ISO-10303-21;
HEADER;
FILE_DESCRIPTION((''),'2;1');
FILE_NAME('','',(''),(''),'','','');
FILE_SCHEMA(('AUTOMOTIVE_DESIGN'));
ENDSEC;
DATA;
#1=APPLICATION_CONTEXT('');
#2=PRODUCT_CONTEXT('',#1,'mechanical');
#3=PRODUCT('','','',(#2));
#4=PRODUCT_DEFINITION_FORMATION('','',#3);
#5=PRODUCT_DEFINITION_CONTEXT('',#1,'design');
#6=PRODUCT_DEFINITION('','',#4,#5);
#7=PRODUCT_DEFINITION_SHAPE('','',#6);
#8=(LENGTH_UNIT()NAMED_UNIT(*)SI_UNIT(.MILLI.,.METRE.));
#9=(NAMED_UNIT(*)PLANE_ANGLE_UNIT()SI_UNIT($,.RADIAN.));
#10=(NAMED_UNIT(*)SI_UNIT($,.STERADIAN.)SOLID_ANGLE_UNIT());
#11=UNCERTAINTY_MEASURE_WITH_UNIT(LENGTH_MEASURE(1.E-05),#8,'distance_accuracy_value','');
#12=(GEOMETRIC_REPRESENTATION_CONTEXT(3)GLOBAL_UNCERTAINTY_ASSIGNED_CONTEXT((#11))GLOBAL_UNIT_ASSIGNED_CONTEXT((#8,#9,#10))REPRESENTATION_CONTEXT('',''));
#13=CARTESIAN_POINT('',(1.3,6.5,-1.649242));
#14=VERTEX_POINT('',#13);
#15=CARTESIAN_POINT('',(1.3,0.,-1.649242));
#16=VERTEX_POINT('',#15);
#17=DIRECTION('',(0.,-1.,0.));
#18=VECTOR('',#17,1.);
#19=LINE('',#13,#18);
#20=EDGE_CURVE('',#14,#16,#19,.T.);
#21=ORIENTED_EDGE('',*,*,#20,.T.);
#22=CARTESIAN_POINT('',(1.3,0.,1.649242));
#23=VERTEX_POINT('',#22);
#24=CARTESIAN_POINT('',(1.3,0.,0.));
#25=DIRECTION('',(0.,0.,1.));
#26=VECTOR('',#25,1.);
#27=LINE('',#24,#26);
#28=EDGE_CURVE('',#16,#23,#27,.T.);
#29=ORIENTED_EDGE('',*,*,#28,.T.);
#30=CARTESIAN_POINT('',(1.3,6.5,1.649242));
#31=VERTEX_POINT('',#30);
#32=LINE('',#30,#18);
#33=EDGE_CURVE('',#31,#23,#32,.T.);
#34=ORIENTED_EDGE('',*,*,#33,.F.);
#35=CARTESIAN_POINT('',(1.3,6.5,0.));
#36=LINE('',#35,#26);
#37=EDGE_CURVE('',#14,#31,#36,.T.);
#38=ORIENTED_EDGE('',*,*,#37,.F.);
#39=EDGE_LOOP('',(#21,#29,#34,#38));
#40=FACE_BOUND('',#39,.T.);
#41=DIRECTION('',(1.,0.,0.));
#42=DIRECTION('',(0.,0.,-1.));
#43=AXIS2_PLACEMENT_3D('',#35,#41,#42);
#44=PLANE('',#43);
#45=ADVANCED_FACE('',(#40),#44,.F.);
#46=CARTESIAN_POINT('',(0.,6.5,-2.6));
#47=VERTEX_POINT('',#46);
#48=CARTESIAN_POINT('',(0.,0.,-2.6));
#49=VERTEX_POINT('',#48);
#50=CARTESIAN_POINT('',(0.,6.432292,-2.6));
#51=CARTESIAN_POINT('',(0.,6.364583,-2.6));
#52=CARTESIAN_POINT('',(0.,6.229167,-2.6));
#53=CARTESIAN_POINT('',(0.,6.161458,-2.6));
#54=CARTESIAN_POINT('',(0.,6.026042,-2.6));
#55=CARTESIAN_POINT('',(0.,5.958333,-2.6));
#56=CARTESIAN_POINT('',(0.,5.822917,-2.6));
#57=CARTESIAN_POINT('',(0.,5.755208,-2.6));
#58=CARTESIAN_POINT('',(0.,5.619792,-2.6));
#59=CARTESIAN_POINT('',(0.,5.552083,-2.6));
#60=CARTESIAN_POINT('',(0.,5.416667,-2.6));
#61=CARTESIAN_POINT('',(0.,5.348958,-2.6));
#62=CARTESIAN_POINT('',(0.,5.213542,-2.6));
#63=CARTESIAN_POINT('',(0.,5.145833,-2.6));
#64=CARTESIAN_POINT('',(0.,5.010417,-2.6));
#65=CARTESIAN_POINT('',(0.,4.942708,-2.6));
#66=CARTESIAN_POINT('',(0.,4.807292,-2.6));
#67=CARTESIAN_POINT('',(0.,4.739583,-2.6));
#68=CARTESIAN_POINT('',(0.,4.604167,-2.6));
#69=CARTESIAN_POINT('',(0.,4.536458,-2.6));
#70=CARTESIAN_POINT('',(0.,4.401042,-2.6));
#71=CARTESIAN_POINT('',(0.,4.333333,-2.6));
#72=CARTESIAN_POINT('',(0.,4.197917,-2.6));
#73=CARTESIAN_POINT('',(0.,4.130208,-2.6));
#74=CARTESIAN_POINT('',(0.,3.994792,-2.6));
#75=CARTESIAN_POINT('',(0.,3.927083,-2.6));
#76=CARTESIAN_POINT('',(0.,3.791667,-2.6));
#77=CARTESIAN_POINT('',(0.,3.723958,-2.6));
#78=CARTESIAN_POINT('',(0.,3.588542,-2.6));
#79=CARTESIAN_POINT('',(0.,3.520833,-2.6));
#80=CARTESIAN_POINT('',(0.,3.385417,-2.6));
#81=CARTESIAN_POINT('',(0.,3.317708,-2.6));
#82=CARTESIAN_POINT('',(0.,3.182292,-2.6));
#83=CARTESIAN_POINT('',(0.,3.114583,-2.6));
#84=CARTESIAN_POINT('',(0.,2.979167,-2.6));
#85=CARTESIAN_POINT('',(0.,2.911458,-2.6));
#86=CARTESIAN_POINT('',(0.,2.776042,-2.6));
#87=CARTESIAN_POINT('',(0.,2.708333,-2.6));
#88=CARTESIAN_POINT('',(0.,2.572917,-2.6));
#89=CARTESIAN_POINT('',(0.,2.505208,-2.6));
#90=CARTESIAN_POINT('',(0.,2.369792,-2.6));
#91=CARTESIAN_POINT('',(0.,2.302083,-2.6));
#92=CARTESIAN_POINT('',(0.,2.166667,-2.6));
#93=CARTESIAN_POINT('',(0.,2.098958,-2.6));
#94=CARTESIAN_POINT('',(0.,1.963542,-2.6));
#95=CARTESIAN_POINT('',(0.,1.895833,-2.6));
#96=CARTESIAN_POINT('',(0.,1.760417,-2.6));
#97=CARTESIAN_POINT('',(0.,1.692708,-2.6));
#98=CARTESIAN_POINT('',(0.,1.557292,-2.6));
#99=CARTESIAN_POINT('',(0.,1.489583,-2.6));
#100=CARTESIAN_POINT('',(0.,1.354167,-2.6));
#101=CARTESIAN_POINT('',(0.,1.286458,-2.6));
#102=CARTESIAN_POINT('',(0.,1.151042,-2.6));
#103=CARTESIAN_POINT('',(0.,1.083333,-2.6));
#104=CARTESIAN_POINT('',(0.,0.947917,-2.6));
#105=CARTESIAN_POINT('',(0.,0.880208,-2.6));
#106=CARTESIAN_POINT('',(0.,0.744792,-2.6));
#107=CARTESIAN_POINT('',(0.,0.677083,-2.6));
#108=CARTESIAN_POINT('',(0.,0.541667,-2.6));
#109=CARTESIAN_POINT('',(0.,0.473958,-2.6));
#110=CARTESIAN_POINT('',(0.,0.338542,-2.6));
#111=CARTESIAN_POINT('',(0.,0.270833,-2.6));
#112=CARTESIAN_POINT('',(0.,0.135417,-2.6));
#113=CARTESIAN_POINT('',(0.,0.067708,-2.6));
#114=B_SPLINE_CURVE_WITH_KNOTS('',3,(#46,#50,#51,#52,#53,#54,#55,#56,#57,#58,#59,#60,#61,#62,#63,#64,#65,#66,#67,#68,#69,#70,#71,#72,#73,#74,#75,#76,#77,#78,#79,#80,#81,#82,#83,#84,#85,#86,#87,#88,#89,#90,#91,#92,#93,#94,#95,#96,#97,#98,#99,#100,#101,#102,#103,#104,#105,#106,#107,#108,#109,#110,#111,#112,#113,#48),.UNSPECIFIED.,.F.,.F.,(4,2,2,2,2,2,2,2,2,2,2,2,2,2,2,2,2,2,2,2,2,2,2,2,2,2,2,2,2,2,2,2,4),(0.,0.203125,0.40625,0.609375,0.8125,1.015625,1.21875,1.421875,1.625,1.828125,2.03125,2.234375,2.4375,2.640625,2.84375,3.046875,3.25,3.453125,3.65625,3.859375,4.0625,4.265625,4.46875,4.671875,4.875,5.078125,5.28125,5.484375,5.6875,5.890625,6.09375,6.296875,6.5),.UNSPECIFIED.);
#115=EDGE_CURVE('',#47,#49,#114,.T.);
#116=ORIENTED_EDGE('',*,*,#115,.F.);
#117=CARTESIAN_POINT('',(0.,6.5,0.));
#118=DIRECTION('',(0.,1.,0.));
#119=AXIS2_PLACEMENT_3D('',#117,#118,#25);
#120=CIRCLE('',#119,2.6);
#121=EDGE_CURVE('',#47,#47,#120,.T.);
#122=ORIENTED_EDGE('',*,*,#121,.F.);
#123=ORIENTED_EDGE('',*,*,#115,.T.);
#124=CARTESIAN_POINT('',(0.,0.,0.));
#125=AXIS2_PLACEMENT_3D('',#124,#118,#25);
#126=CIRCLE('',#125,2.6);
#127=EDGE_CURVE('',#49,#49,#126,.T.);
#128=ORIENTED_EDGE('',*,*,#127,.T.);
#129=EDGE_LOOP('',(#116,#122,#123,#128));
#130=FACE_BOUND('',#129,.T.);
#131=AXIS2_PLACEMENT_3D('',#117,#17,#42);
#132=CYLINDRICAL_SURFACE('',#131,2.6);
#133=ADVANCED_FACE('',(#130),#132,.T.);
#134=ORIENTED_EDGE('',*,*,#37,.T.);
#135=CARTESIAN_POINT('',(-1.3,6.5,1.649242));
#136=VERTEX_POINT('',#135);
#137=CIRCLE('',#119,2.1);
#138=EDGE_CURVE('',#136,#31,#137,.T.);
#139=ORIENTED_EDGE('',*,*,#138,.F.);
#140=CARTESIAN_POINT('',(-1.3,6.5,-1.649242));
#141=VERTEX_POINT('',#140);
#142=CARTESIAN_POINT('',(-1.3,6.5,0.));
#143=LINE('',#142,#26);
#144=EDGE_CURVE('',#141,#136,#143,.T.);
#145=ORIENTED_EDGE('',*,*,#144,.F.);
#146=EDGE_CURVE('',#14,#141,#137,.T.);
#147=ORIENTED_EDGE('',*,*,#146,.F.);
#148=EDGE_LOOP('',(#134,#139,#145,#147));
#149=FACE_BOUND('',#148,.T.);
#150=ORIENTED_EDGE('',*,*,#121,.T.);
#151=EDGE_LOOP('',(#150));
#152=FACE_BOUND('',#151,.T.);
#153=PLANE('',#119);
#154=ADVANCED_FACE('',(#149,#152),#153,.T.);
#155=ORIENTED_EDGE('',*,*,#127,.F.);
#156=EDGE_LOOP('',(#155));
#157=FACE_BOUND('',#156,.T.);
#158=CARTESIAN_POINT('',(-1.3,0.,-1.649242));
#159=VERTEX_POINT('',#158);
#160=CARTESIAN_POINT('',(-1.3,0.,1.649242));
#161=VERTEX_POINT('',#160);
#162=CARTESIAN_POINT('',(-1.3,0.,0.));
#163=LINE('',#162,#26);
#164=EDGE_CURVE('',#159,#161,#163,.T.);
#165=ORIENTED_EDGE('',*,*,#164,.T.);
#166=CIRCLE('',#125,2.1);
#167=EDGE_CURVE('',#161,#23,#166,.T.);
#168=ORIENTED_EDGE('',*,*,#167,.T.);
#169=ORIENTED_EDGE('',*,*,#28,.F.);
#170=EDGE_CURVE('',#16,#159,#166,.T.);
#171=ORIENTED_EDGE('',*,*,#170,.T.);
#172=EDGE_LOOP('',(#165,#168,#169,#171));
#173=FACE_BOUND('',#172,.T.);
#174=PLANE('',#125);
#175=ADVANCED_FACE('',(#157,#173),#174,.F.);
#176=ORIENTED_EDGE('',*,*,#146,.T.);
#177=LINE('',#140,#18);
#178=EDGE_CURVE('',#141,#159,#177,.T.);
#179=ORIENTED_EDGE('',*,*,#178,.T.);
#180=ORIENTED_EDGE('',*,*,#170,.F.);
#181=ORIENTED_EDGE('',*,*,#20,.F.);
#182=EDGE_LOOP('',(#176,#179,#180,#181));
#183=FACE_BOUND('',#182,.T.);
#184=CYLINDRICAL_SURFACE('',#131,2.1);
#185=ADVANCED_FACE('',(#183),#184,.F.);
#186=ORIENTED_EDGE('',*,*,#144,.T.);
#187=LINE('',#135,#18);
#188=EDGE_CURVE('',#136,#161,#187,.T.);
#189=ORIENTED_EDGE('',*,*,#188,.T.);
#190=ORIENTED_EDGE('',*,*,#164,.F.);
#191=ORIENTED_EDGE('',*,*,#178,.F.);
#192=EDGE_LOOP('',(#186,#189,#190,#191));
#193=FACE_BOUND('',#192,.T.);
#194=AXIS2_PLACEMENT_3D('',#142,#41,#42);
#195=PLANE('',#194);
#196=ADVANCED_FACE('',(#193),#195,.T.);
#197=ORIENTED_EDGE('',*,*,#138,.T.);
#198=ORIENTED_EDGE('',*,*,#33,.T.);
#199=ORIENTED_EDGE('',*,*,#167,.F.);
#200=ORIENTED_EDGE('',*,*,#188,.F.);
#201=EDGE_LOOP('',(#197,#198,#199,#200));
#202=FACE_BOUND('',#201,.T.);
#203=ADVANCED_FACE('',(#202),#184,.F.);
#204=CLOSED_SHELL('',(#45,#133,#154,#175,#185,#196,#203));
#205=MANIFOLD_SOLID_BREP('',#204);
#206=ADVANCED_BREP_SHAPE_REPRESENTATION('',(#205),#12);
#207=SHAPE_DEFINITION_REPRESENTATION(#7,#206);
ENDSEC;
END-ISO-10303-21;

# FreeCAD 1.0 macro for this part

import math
import FreeCAD as App
import Part
import Sketcher

doc = App.newDocument("Part")
body = doc.addObject("PartDesign::Body", "Body")

# Sketch on XZ plane
sketch1 = body.newObject("Sketcher::SketchObject", "Sketch")
sketch1.AttachmentSupport = (doc.getObject("XZ_Plane"), [""])
sketch1.MapMode = "FlatFace"
sketch1.addGeometry([
    Part.ArcOfCircle(Part.Circle(App.Vector(0, 0, 0), App.Vector(0, 0, 1), 2.6), math.radians(0), math.radians(60)),  # 0
    Part.ArcOfCircle(Part.Circle(App.Vector(0, 0, 0), App.Vector(0, 0, 1), 2.6), math.radians(-60), math.radians(0)),  # 1
    Part.ArcOfCircle(Part.Circle(App.Vector(0, 0, 0), App.Vector(0, 0, 1), 2.6), math.radians(-90), math.radians(-60)),  # 2
    Part.ArcOfCircle(Part.Circle(App.Vector(0, 0, 0), App.Vector(0, 0, 1), 2.6), math.radians(-120), math.radians(-90)),  # 3
    Part.ArcOfCircle(Part.Circle(App.Vector(0, 0, 0), App.Vector(0, 0, 1), 2.6), math.radians(120), math.radians(240)),  # 4
    Part.ArcOfCircle(Part.Circle(App.Vector(0, 0, 0), App.Vector(0, 0, 1), 2.6), math.radians(90), math.radians(120)),  # 5
    Part.ArcOfCircle(Part.Circle(App.Vector(0, 0, 0), App.Vector(0, 0, 1), 2.6), math.radians(60), math.radians(90)),  # 6
    Part.ArcOfCircle(Part.Circle(App.Vector(0, 0, 0), App.Vector(0, 0, 1), 2.1), math.radians(52), math.radians(90)),  # 7
    Part.ArcOfCircle(Part.Circle(App.Vector(0, 0, 0), App.Vector(0, 0, 1), 2.1), math.radians(90), math.radians(128)),  # 8
    Part.LineSegment(App.Vector(-1.3, 1.6, 0), App.Vector(-1.3, -1.6, 0)),  # 9
    Part.ArcOfCircle(Part.Circle(App.Vector(0, 0, 0), App.Vector(0, 0, 1), 2.1), math.radians(-128), math.radians(-90)),  # 10
    Part.ArcOfCircle(Part.Circle(App.Vector(0, 0, 0), App.Vector(0, 0, 1), 2.1), math.radians(-90), math.radians(-52)),  # 11
    Part.LineSegment(App.Vector(1.3, -1.6, 0), App.Vector(1.3, 1.6, 0)),  # 12
], False)
sketch1.addConstraint([
    Sketcher.Constraint("Tangent", 0, 1, 1, 2),
    Sketcher.Constraint("Tangent", 1, 1, 2, 2),
    Sketcher.Constraint("Tangent", 2, 1, 3, 2),
    Sketcher.Constraint("Tangent", 3, 1, 4, 2),
    Sketcher.Constraint("Tangent", 4, 1, 5, 2),
    Sketcher.Constraint("Tangent", 5, 1, 6, 2),
    Sketcher.Constraint("Tangent", 6, 1, 0, 2),
    Sketcher.Constraint("Tangent", 7, 2, 8, 1),
    Sketcher.Constraint("Coincident", 8, 2, 9, 1),
    Sketcher.Constraint("Coincident", 9, 2, 10, 1),
    Sketcher.Constraint("Tangent", 10, 2, 11, 1),
    Sketcher.Constraint("Coincident", 11, 2, 12, 1),
    Sketcher.Constraint("Coincident", 12, 2, 7, 1),
    Sketcher.Constraint("Vertical", 9),
    Sketcher.Constraint("Vertical", 12),
    Sketcher.Constraint("Coincident", 0, 3, -1, 1),
    Sketcher.Constraint("Coincident", 2, 3, -1, 1),
    Sketcher.Constraint("Coincident", 4, 3, -1, 1),
    Sketcher.Constraint("Coincident", 7, 3, -1, 1),
    Sketcher.Constraint("Coincident", 10, 3, -1, 1),
    Sketcher.Constraint("Equal", 7, 8),
    Sketcher.Constraint("Equal", 8, 10),
    Sketcher.Constraint("Equal", 10, 11),
    Sketcher.Constraint("PointOnObject", 0, 1, -1),
    Sketcher.Constraint("PointOnObject", 2, 1, -2),
    Sketcher.Constraint("PointOnObject", 5, 1, -2),
    Sketcher.Constraint("PointOnObject", 7, 2, -2),
    Sketcher.Constraint("PointOnObject", 10, 2, -2),
    Sketcher.Constraint("Horizontal", 1, 1, 3, 1),
    Sketcher.Constraint("Horizontal", 4, 1, 6, 1),
    Sketcher.Constraint("Horizontal", 9, 2, 11, 2),
    Sketcher.Constraint("Vertical", 3, 1, 4, 1),
    Sketcher.Constraint("Vertical", 4, 1, 8, 2),
    Sketcher.Constraint("Radius", 0, 2.6),
    Sketcher.Constraint("Radius", 7, 2.1),
    Sketcher.Constraint("DistanceX", -1, 1, 1, 1, 1.3),
])
pad1 = body.newObject("PartDesign::Pad", "Pad")
pad1.Profile = sketch1
pad1.Length = 6.5
pad1.Reversed = True

doc.recompute()
